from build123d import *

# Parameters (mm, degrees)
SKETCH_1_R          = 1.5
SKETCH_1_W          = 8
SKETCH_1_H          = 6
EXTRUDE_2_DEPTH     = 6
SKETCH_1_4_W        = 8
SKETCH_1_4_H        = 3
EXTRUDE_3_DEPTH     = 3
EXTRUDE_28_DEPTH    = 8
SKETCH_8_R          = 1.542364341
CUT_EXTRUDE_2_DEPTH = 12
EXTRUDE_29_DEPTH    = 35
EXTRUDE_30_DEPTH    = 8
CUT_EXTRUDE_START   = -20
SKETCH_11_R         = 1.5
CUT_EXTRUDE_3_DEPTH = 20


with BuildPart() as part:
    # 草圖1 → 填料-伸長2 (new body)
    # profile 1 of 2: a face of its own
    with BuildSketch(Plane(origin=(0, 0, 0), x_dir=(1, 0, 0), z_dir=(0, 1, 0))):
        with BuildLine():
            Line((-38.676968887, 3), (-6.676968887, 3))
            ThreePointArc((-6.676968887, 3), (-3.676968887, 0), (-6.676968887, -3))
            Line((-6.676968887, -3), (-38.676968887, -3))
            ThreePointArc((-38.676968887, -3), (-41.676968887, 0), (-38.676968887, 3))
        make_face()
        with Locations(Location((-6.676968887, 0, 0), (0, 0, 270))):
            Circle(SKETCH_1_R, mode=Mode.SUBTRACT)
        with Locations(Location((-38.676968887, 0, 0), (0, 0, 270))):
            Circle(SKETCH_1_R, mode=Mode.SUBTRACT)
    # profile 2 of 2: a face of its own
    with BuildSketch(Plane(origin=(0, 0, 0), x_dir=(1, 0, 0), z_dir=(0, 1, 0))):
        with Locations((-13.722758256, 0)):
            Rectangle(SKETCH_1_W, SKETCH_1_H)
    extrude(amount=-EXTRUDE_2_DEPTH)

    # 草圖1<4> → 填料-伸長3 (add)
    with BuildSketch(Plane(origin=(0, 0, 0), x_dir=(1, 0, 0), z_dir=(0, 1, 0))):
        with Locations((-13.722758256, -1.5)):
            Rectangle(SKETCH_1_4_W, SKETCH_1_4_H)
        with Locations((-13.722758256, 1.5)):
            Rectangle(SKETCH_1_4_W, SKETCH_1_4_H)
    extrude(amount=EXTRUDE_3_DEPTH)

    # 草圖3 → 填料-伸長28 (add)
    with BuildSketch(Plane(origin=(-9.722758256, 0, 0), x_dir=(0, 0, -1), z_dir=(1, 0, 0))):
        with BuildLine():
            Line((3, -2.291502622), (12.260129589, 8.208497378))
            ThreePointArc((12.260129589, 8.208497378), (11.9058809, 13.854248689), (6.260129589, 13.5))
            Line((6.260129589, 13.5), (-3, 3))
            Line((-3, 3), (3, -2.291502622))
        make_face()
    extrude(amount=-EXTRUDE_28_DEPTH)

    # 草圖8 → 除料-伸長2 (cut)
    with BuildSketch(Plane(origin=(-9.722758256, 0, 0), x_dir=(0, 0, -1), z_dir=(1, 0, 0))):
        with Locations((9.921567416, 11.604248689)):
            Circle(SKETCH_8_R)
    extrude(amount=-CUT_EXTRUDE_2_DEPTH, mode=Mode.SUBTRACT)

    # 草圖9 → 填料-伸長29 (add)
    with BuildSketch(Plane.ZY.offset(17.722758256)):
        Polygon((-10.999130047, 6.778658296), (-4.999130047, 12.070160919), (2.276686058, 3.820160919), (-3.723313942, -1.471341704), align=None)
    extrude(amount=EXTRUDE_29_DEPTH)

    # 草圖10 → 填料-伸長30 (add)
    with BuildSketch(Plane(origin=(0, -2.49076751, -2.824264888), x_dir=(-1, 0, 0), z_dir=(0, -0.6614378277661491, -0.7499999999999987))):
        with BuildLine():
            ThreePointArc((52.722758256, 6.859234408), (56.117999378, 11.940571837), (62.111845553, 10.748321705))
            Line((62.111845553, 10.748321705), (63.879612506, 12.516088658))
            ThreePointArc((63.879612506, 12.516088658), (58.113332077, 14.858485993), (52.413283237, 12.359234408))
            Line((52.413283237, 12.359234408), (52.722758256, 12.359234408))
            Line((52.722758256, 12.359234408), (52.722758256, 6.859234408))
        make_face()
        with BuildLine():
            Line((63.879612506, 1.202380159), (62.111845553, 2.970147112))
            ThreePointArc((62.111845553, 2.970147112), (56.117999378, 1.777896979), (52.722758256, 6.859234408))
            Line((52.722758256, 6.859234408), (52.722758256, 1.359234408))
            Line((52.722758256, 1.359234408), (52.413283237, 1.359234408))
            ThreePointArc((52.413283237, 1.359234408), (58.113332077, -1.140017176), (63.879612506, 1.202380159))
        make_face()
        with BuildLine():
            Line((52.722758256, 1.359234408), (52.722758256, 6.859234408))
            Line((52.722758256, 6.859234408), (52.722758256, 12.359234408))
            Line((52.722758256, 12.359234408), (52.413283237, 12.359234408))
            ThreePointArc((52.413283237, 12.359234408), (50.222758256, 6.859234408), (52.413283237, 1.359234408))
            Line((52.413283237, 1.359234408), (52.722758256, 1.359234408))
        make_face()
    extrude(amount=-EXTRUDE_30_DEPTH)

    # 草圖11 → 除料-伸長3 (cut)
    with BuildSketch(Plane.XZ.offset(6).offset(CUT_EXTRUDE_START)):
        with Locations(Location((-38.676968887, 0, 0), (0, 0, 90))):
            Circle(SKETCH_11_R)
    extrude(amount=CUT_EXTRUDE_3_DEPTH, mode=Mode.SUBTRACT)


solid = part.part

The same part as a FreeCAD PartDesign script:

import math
import FreeCAD as App
import Part
import Sketcher

V = App.Vector

doc = App.newDocument("Part")
params = doc.addObject("Spreadsheet::Sheet", "Params")
for row, (alias, value) in enumerate([
    ("sketch1_diameter", "3 mm"),
    ("sketch1_radius", "3 mm"),
    ("sketch1_width", "32 mm"),
    ("pad1_length", "6 mm"),
    ("sketch2_width", "8 mm"),
    ("sketch2_height", "6 mm"),
    ("pad2_length", "3 mm"),
    ("sketch3_radius", "4 mm"),
    ("sketch3_length", "14 mm"),
    ("pad3_length", "8 mm"),
    ("pocket1_length", "12 mm"),
    ("sketch5_length", "8 mm"),
    ("sketch5_length2", "11 mm"),
    ("pad4_length", "35 mm"),
    ("sketch6_radius", "8 mm"),
    ("sketch6_radius2", "5.5 mm"),
    ("pad5_length", "8 mm"),
    ("sketch7_diameter", "3 mm"),
    ("pocket2_length", "20 mm"),
], start=1):
    params.set(f"A{row}", alias)
    params.set(f"B{row}", "=" + value)
    params.setAlias(f"B{row}", alias)

body = doc.addObject("PartDesign::Body", "Body")

# Sketch on XZ plane
sketch1 = doc.addObject("Sketcher::SketchObject", "Sketch")
body.addObject(sketch1)
sketch1.AttachmentSupport = (doc.XZ_Plane, [""])
sketch1.MapMode = "FlatFace"
sketch1.addGeometry([
    Part.ArcOfCircle(Part.Circle(V(-38.7, 0, 0), V(0, 0, 1), 3), math.radians(90), math.radians(270)),  # 0
    Part.LineSegment(V(-38.7, 3, 0), V(-6.7, 3, 0)),  # 1
    Part.ArcOfCircle(Part.Circle(V(-6.7, 0, 0), V(0, 0, 1), 3), math.radians(-90), math.radians(90)),  # 2
    Part.LineSegment(V(-6.7, -3, 0), V(-38.7, -3, 0)),  # 3
    Part.Circle(V(-38.7, 0, 0), V(0, 0, 1), 1.5),  # 4
    Part.Circle(V(-6.7, 0, 0), V(0, 0, 1), 1.5),  # 5
], False)
sketch1.addConstraint([
    Sketcher.Constraint("Tangent", 0, 1, 1, 1),
    Sketcher.Constraint("Tangent", 1, 2, 2, 2),
    Sketcher.Constraint("Tangent", 2, 1, 3, 1),
    Sketcher.Constraint("Tangent", 3, 2, 0, 2),
    Sketcher.Constraint("Horizontal", 1),
    Sketcher.Constraint("Horizontal", 3),
    Sketcher.Constraint("Coincident", 4, 3, 0, 3),
    Sketcher.Constraint("Coincident", 5, 3, 2, 3),
    Sketcher.Constraint("Equal", 4, 5),
    Sketcher.Constraint("PointOnObject", 0, 3, -1),
    Sketcher.Constraint("Diameter", 4, 3.0),
    Sketcher.Constraint("Radius", 0, 3.0),
    Sketcher.Constraint("DistanceX", 1, 1, 1, 2, 32.0),
    Sketcher.Constraint("DistanceX", 0, 3, -1, 1, 38.676969),
])
sketch1.setExpression("Constraints[10]", "Params.sketch1_diameter")
sketch1.setExpression("Constraints[11]", "Params.sketch1_radius")
sketch1.setExpression("Constraints[12]", "Params.sketch1_width")
pad1 = doc.addObject("PartDesign::Pad", "Pad")
body.addObject(pad1)
pad1.Profile = sketch1
pad1.setExpression("Length", "Params.pad1_length")

# Sketch on XZ plane
sketch2 = doc.addObject("Sketcher::SketchObject", "Sketch001")
body.addObject(sketch2)
sketch2.AttachmentSupport = (doc.XZ_Plane, [""])
sketch2.MapMode = "FlatFace"
sketch2.addGeometry([
    Part.LineSegment(V(-18, 3, 0), V(-10, 3, 0)),
    Part.LineSegment(V(-10, 3, 0), V(-10, -3, 0)),
    Part.LineSegment(V(-10, -3, 0), V(-18, -3, 0)),
    Part.LineSegment(V(-18, -3, 0), V(-18, 3, 0)),
], False)
sketch2.addConstraint([
    Sketcher.Constraint("Coincident", 0, 2, 1, 1),
    Sketcher.Constraint("Coincident", 1, 2, 2, 1),
    Sketcher.Constraint("Coincident", 2, 2, 3, 1),
    Sketcher.Constraint("Coincident", 3, 2, 0, 1),
    Sketcher.Constraint("Horizontal", 0),
    Sketcher.Constraint("Vertical", 1),
    Sketcher.Constraint("Horizontal", 2),
    Sketcher.Constraint("Vertical", 3),
    Sketcher.Constraint("DistanceX", 0, 1, 0, 2, 8.0),
    Sketcher.Constraint("DistanceY", 1, 2, 1, 1, 6.0),
    Sketcher.Constraint("DistanceY", -1, 1, 0, 2, 3.0),
    Sketcher.Constraint("DistanceX", 0, 2, -1, 1, 9.722758),
])
sketch2.setExpression("Constraints[8]", "Params.sketch2_width")
sketch2.setExpression("Constraints[9]", "Params.sketch2_height")
pad2 = doc.addObject("PartDesign::Pad", "Pad001")
body.addObject(pad2)
pad2.Profile = sketch2
pad2.setExpression("Length", "Params.pad2_length")
pad2.Reversed = True

# Sketch on YZ plane
sketch3 = doc.addObject("Sketcher::SketchObject", "Sketch002")
body.addObject(sketch3)
sketch3.AttachmentSupport = (doc.YZ_Plane, [""])
sketch3.MapMode = "FlatFace"
sketch3.AttachmentOffset = App.Placement(V(0, 0, -9.722758), App.Rotation())
sketch3.addGeometry([
    Part.LineSegment(V(-2.3, -3, 0), V(8.2, -12.3, 0)),
    Part.ArcOfCircle(Part.Circle(V(10.9, -9.3, 0), V(0, 0, 1), 4), math.radians(-131), math.radians(49)),
    Part.LineSegment(V(13.5, -6.3, 0), V(3, 3, 0)),
    Part.LineSegment(V(3, 3, 0), V(-2.3, -3, 0)),
], False)
sketch3.addConstraint([
    Sketcher.Constraint("Tangent", 0, 2, 1, 1),
    Sketcher.Constraint("Tangent", 1, 2, 2, 1),
    Sketcher.Constraint("Coincident", 2, 2, 3, 1),
    Sketcher.Constraint("Coincident", 3, 2, 0, 1),
    Sketcher.Constraint("Parallel", 0, 2),
    Sketcher.Constraint("Perpendicular", 2, 3),
    Sketcher.Constraint("Radius", 1, 4.0),
    Sketcher.Constraint("Distance", 0, 14.0),
    Sketcher.Constraint("DistanceX", -1, 1, 2, 2, 3.0),
    Sketcher.Constraint("DistanceY", -1, 1, 2, 2, 3.0),
    Sketcher.Constraint("DistanceY", 3, 2, -1, 1, 3.0),
])
sketch3.setExpression("Constraints[6]", "Params.sketch3_radius")
sketch3.setExpression("Constraints[7]", "Params.sketch3_length")
pad3 = doc.addObject("PartDesign::Pad", "Pad002")
body.addObject(pad3)
pad3.Profile = sketch3
pad3.setExpression("Length", "Params.pad3_length")
pad3.Reversed = True

# Sketch on YZ plane
sketch4 = doc.addObject("Sketcher::SketchObject", "Sketch003")
body.addObject(sketch4)
sketch4.AttachmentSupport = (doc.YZ_Plane, [""])
sketch4.MapMode = "FlatFace"
sketch4.AttachmentOffset = App.Placement(V(0, 0, -9.722758), App.Rotation())
sketch4.addGeometry(Part.Circle(V(11.6, -9.9, 0), V(0, 0, 1), 1.5), False)
sketch4.addConstraint([
    Sketcher.Constraint("Diameter", 0, 3.084729),
    Sketcher.Constraint("DistanceX", -1, 1, 0, 3, 11.604249),
    Sketcher.Constraint("DistanceY", 0, 3, -1, 1, 9.921567),
])
pocket1 = doc.addObject("PartDesign::Pocket", "Pocket")
body.addObject(pocket1)
pocket1.Profile = sketch4
pocket1.setExpression("Length", "Params.pocket1_length")

# Sketch on YZ plane
sketch5 = doc.addObject("Sketcher::SketchObject", "Sketch004")
body.addObject(sketch5)
sketch5.AttachmentSupport = (doc.YZ_Plane, [""])
sketch5.MapMode = "FlatFace"
sketch5.AttachmentOffset = App.Placement(V(0, 0, -17.722758), App.Rotation())
sketch5.addGeometry([
    Part.LineSegment(V(12, -5, 0), V(7, -11, 0)),
    Part.LineSegment(V(7, -11, 0), V(-1, -4, 0)),
    Part.LineSegment(V(-1, -4, 0), V(4, 2, 0)),
    Part.LineSegment(V(4, 2, 0), V(12, -5, 0)),
], False)
sketch5.addConstraint([
    Sketcher.Constraint("Coincident", 0, 2, 1, 1),
    Sketcher.Constraint("Coincident", 1, 2, 2, 1),
    Sketcher.Constraint("Coincident", 2, 2, 3, 1),
    Sketcher.Constraint("Coincident", 3, 2, 0, 1),
    Sketcher.Constraint("Perpendicular", 0, 1),
    Sketcher.Constraint("Perpendicular", 1, 2),
    Sketcher.Constraint("Perpendicular", 2, 3),
    Sketcher.Constraint("Distance", 0, 8.0),
    Sketcher.Constraint("Distance", 1, 11.0),
    Sketcher.Constraint("DistanceY", 1, 2, 2, 2, 6.0),
    Sketcher.Constraint("DistanceX", -1, 1, 0, 2, 6.778658),
    Sketcher.Constraint("DistanceY", 0, 2, -1, 1, 10.99913),
])
sketch5.setExpression("Constraints[7]", "Params.sketch5_length")
sketch5.setExpression("Constraints[8]", "Params.sketch5_length2")
pad4 = doc.addObject("PartDesign::Pad", "Pad003")
body.addObject(pad4)
pad4.Profile = sketch5
pad4.setExpression("Length", "Params.pad4_length")
pad4.Reversed = True

# Sketch on an angled plane
sketch6 = doc.addObject("Sketcher::SketchObject", "Sketch005")
body.addObject(sketch6)
sketch6.Placement = App.Placement(V(0, -2.490768, -2.824265), App.Rotation(V(-1, 0, 0), V(0, 0.75, -0.661437828), V(0, -0.661437828, -0.75), "ZXY"))
sketch6.addGeometry([
    Part.ArcOfCircle(Part.Circle(V(58.2, 6.9, 0), V(0, 0, 1), 5.5), math.radians(45), math.radians(180)),  # 0
    Part.LineSegment(V(62.1, 10.7, 0), V(63.9, 12.5, 0)),  # 1
    Part.ArcOfCircle(Part.Circle(V(58.2, 6.9, 0), V(0, 0, 1), 8), math.radians(45), math.radians(137)),  # 2
    Part.ArcOfCircle(Part.Circle(V(58.2, 6.9, 0), V(0, 0, 1), 8), math.radians(137), math.radians(223)),  # 3
    Part.ArcOfCircle(Part.Circle(V(58.2, 6.9, 0), V(0, 0, 1), 8), math.radians(-137), math.radians(-45)),  # 4
    Part.LineSegment(V(63.9, 1.2, 0), V(62.1, 3, 0)),  # 5
    Part.ArcOfCircle(Part.Circle(V(58.2, 6.9, 0), V(0, 0, 1), 5.5), math.radians(180), math.radians(315)),  # 6
], False)
sketch6.addConstraint([
    Sketcher.Constraint("Coincident", 0, 1, 1, 1),
    Sketcher.Constraint("Coincident", 1, 2, 2, 1),
    Sketcher.Constraint("Tangent", 2, 2, 3, 1),
    Sketcher.Constraint("Tangent", 3, 2, 4, 1),
    Sketcher.Constraint("Coincident", 4, 2, 5, 1),
    Sketcher.Constraint("Coincident", 5, 2, 6, 2),
    Sketcher.Constraint("Tangent", 6, 1, 0, 2),
    Sketcher.Constraint("Coincident", 2, 3, 0, 3),
    Sketcher.Constraint("Coincident", 4, 3, 0, 3),
    Sketcher.Constraint("Equal", 0, 6),
    Sketcher.Constraint("Perpendicular", 1, 5),
    Sketcher.Constraint("Horizontal", 4, 3, 6, 1),
    Sketcher.Constraint("Vertical", 2, 2, 3, 2),
    Sketcher.Constraint("Vertical", 1, 2, 4, 2),
    Sketcher.Constraint("Vertical", 0, 1, 5, 2),
    Sketcher.Constraint("Radius", 2, 8.0),
    Sketcher.Constraint("Radius", 0, 5.5),
    Sketcher.Constraint("DistanceY", 3, 3, 2, 2, 5.5),
    Sketcher.Constraint("DistanceX", -1, 1, 0, 3, 58.222758),
    Sketcher.Constraint("DistanceY", -1, 1, 0, 1, 10.748322),
    Sketcher.Constraint("DistanceY", -1, 1, 4, 2, 1.20238),
])
sketch6.setExpression("Constraints[15]", "Params.sketch6_radius")
sketch6.setExpression("Constraints[16]", "Params.sketch6_radius2")
pad5 = doc.addObject("PartDesign::Pad", "Pad004")
body.addObject(pad5)
pad5.Profile = sketch6
pad5.setExpression("Length", "Params.pad5_length")
pad5.Reversed = True

# Sketch on XZ plane
sketch7 = doc.addObject("Sketcher::SketchObject", "Sketch006")
body.addObject(sketch7)
sketch7.AttachmentSupport = (doc.XZ_Plane, [""])
sketch7.MapMode = "FlatFace"
sketch7.AttachmentOffset = App.Placement(V(0, 0, -14), App.Rotation())
sketch7.addGeometry(Part.Circle(V(-38.7, 0, 0), V(0, 0, 1), 1.5), False)
sketch7.addConstraint([
    Sketcher.Constraint("PointOnObject", 0, 3, -1),
    Sketcher.Constraint("Diameter", 0, 3.0),
    Sketcher.Constraint("DistanceX", 0, 3, -1, 1, 38.676969),
])
sketch7.setExpression("Constraints[1]", "Params.sketch7_diameter")
pocket2 = doc.addObject("PartDesign::Pocket", "Pocket001")
body.addObject(pocket2)
pocket2.Profile = sketch7
pocket2.setExpression("Length", "Params.pocket2_length")
pocket2.Reversed = True

doc.recompute()
